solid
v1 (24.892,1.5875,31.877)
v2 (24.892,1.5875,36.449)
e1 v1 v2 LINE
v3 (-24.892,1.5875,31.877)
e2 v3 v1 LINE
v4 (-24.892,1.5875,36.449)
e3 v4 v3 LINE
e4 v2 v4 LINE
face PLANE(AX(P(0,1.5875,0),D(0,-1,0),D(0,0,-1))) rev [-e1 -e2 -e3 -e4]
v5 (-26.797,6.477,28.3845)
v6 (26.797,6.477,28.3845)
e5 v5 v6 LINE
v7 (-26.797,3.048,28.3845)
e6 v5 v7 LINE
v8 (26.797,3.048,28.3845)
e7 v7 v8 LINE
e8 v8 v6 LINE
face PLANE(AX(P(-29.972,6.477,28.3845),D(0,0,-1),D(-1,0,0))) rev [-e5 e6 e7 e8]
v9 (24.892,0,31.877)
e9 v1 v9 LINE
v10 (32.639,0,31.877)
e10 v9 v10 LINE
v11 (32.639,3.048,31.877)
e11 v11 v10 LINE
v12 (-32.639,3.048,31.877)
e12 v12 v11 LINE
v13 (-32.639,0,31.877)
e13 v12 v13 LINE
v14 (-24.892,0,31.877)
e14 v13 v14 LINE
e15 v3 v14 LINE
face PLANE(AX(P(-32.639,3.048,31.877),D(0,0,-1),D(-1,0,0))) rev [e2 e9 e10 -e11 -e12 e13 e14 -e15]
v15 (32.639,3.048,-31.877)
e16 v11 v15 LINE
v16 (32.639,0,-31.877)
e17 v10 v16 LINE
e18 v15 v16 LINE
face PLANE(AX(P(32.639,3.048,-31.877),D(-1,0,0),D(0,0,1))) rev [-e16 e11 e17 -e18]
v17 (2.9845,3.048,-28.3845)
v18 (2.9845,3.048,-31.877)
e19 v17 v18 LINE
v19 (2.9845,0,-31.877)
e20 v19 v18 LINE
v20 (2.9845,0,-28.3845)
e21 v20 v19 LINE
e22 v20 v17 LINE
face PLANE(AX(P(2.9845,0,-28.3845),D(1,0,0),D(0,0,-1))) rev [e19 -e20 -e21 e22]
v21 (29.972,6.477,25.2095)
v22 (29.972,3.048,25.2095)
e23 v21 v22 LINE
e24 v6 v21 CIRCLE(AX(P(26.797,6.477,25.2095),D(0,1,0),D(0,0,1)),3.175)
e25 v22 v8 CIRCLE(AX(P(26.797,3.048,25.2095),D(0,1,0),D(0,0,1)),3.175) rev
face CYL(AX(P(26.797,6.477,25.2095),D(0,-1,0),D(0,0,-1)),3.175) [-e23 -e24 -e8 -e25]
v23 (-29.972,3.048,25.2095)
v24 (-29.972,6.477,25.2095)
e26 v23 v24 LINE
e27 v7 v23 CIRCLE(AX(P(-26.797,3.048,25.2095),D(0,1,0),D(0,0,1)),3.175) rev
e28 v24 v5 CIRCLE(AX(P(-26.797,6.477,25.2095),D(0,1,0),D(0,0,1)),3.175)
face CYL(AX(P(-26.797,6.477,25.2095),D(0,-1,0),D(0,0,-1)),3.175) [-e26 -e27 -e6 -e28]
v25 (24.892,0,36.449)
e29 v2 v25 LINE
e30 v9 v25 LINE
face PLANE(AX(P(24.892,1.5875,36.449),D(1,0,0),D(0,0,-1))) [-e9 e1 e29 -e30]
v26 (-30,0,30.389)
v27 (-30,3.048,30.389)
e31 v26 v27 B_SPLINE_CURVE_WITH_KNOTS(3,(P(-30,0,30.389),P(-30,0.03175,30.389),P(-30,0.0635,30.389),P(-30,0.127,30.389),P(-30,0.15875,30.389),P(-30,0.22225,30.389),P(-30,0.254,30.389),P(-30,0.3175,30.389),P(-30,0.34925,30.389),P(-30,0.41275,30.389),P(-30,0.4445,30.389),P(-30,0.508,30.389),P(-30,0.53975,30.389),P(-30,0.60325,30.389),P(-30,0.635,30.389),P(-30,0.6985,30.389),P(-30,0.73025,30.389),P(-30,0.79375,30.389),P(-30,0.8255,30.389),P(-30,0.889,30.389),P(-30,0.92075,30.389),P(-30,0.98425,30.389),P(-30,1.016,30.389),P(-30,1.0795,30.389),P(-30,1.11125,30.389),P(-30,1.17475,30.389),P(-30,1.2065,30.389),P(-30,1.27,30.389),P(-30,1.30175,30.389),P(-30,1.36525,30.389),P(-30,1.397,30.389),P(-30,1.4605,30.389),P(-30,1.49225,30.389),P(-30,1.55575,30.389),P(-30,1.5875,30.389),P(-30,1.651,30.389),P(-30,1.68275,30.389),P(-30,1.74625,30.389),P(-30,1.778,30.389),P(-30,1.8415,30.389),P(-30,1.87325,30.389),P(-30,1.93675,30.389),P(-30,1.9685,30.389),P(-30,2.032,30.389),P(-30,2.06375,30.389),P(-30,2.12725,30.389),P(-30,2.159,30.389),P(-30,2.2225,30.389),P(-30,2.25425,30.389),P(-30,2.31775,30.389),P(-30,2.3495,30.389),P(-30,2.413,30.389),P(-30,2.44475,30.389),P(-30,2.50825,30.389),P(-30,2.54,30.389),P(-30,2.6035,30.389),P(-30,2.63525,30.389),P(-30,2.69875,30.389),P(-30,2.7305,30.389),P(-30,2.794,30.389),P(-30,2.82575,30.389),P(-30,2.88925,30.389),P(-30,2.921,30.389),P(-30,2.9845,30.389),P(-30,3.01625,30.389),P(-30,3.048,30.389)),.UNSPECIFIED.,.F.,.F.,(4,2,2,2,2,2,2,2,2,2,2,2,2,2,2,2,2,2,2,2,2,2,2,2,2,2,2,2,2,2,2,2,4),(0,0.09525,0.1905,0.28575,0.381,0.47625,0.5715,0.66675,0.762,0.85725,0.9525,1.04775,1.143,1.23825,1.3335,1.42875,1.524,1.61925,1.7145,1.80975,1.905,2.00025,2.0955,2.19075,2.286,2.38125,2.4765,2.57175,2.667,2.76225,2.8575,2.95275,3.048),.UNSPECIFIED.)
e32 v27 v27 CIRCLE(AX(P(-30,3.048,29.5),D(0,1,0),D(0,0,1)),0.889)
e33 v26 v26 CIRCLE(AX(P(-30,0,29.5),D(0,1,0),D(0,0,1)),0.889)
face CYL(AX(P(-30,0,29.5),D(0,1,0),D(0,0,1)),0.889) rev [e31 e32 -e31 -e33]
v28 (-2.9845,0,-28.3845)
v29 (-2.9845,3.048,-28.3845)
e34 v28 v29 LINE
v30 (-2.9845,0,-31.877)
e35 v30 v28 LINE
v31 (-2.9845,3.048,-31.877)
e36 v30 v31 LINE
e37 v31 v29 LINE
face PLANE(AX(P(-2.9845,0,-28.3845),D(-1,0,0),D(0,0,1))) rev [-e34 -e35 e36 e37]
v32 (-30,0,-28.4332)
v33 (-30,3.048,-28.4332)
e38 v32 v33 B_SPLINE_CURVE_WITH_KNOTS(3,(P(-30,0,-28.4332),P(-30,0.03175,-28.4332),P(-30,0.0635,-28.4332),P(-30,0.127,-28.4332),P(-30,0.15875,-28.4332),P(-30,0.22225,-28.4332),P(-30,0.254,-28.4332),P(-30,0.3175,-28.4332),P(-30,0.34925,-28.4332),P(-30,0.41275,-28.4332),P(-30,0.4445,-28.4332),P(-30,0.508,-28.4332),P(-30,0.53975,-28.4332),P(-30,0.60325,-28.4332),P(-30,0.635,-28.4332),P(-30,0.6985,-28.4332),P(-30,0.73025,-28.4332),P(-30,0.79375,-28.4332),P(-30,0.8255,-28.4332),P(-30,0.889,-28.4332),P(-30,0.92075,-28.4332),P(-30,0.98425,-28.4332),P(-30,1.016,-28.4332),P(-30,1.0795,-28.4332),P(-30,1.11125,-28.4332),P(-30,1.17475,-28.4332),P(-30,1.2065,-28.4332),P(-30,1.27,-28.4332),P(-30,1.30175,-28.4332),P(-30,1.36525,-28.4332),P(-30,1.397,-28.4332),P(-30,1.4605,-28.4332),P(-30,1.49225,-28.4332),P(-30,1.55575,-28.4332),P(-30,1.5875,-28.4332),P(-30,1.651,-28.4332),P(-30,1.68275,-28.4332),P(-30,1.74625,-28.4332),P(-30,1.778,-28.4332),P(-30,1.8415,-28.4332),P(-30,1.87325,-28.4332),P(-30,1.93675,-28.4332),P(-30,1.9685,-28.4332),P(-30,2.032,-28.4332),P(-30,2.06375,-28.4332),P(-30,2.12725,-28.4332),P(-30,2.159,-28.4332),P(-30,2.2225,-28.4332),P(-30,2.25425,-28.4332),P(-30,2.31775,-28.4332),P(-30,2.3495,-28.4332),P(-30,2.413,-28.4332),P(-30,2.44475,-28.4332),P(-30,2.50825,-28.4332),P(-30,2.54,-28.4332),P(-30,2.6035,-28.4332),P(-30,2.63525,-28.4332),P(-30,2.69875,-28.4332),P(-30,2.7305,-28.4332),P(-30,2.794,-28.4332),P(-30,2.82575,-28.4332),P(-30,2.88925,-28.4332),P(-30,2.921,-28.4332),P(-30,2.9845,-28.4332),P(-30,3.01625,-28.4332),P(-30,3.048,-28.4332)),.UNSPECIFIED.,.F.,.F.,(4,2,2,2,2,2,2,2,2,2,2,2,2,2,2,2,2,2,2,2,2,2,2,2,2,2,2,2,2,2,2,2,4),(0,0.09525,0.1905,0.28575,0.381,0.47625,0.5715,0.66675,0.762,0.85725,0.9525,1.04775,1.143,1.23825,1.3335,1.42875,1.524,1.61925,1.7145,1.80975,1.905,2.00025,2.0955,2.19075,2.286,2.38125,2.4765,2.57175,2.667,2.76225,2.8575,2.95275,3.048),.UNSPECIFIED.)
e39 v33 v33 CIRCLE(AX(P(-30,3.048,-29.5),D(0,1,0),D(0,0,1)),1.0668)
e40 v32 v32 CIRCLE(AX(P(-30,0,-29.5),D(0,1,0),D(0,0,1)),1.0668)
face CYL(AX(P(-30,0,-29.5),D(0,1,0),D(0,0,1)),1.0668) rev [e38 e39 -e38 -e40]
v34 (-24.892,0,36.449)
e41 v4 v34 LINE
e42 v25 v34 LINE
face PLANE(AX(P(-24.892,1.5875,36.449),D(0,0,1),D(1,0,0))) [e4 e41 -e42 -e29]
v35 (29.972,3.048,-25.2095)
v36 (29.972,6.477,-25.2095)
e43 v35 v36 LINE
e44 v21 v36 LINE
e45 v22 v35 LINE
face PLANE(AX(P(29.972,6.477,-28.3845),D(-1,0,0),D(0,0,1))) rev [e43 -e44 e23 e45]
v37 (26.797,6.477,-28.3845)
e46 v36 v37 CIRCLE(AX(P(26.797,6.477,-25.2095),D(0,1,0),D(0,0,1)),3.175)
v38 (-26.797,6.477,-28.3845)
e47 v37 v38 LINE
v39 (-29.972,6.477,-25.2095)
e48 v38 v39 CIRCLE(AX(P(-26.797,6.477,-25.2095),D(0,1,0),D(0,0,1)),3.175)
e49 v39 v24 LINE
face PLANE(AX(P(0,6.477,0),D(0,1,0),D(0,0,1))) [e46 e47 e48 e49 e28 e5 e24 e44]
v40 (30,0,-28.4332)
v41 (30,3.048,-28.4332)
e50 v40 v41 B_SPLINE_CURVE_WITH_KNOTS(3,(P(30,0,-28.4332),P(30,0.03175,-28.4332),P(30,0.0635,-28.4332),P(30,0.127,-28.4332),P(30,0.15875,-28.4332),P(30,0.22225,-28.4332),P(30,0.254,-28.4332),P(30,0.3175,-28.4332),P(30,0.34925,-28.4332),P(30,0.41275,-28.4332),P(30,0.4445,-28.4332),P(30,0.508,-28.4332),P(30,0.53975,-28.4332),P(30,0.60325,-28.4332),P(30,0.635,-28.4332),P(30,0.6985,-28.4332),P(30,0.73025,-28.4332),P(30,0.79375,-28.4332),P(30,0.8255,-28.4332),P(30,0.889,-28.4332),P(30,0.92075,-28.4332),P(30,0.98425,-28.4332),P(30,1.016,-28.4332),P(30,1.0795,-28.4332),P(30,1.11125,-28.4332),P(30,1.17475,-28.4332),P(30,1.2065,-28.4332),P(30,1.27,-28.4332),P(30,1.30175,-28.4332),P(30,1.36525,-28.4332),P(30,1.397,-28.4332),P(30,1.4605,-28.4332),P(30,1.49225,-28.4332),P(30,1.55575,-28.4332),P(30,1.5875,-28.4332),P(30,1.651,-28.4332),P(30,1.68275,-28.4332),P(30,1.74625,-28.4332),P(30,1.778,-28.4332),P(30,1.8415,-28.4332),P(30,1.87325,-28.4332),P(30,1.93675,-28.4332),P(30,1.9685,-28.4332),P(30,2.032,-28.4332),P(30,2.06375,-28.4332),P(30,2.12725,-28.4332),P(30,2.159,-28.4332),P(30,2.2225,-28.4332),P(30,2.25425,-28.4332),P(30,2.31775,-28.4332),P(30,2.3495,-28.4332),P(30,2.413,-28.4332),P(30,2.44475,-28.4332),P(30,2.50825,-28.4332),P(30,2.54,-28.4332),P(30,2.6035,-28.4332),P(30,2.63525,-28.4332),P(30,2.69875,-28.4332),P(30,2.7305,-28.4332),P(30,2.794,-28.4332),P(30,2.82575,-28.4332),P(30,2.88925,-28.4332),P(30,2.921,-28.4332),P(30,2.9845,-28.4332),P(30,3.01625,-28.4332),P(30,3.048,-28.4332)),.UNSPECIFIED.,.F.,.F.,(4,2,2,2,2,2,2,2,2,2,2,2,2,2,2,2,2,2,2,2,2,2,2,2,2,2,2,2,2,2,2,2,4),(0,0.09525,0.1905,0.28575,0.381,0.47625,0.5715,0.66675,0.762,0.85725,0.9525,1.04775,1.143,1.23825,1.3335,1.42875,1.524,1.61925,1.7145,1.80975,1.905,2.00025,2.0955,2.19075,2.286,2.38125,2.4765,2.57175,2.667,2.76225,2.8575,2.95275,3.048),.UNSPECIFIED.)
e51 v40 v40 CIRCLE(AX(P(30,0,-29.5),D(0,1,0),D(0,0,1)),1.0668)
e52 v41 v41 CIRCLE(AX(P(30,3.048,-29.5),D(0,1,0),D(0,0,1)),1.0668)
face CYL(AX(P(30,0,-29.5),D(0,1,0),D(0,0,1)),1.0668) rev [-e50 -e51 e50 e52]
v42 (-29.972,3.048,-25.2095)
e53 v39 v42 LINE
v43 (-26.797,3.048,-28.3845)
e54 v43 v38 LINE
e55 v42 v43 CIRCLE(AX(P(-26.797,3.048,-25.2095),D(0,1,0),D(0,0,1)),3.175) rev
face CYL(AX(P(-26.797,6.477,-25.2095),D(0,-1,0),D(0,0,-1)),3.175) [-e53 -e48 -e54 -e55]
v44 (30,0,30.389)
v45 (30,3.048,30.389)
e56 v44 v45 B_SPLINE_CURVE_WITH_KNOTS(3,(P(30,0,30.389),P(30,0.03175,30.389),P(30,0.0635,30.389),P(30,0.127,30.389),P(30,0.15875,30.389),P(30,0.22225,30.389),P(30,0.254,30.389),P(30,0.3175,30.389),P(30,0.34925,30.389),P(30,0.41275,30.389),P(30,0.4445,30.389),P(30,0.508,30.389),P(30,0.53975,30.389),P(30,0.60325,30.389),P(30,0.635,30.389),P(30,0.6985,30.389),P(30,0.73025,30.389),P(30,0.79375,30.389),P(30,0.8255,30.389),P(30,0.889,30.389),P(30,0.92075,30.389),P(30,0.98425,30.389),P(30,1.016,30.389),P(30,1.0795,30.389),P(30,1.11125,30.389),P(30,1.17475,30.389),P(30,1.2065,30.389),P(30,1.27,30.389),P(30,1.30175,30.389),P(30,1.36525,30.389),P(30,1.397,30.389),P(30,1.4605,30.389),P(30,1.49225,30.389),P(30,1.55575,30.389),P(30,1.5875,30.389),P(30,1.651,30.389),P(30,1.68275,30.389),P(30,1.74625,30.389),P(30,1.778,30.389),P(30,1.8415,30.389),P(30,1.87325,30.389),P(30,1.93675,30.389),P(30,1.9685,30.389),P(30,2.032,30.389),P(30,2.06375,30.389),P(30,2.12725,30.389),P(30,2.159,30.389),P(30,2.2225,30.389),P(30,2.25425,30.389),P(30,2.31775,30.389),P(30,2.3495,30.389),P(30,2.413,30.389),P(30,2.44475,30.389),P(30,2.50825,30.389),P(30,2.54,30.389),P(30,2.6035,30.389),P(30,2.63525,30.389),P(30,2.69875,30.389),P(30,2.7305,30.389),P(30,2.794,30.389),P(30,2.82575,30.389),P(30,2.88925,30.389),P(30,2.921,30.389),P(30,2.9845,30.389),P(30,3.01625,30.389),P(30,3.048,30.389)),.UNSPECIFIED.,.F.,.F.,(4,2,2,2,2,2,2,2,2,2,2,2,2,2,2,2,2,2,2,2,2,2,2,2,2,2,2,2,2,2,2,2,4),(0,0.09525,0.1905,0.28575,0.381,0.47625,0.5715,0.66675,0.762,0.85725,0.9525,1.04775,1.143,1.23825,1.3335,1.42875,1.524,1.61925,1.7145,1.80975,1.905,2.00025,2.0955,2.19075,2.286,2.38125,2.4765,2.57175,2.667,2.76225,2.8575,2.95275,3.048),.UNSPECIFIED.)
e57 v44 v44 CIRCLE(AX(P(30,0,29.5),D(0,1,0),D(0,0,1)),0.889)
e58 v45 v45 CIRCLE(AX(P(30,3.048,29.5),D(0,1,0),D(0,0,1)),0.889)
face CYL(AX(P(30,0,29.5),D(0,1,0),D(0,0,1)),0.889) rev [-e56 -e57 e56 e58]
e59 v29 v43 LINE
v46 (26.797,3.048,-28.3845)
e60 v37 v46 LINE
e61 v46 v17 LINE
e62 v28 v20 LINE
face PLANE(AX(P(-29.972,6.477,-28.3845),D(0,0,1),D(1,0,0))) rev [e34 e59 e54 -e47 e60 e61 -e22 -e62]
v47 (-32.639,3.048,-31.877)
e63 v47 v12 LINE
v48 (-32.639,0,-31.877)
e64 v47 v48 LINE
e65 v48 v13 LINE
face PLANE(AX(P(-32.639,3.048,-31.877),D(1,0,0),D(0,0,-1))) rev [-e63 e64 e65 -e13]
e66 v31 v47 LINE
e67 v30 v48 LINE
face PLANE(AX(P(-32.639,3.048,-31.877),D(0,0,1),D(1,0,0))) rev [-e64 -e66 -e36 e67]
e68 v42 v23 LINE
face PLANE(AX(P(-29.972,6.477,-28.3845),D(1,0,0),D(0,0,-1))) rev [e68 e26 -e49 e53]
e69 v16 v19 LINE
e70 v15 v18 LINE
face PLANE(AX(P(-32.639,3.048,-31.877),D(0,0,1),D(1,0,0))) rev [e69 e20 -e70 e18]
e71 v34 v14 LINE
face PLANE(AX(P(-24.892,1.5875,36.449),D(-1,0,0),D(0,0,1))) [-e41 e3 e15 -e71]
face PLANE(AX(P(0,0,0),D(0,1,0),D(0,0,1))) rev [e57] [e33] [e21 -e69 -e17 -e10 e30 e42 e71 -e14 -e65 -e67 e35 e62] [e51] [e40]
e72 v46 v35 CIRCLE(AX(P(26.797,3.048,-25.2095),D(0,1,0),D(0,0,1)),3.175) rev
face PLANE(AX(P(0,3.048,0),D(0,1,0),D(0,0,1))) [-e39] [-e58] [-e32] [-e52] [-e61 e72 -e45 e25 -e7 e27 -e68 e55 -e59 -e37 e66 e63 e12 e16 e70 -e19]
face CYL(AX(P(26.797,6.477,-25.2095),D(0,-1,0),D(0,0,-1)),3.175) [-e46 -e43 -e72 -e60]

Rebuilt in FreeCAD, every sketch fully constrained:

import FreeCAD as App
import Part
import Sketcher
from FreeCAD import Vector
Q = App.Units.Quantity


def edges_at(feature, points):
    """Names of the edges that pass closest to the given points."""
    edges = feature.Shape.Edges
    near = lambda p: min(range(len(edges)), key=lambda i: edges[i].distToShape(Part.Vertex(*p))[0])
    return sorted({f"Edge{near(p) + 1}" for p in points})


def add_polygon(sketch, points):
    """Adds a closed chain of lines whose ends are joined by coincident constraints."""
    first, n = sketch.GeometryCount, len(points)
    for a, b in zip(points, points[1:] + points[:1]):
        sketch.addGeometry(Part.LineSegment(App.Vector(*a, 0), App.Vector(*b, 0)), False)
    for i in range(n):
        sketch.addConstraint(Sketcher.Constraint("Coincident", first + i, 2, first + (i + 1) % n, 1))

doc = App.newDocument("Part")
body = doc.addObject("PartDesign::Body", "Body")

# Sketch on XZ plane
sketch1 = body.newObject("Sketcher::SketchObject", "Sketch")
sketch1.AttachmentSupport = (doc.getObject("XZ_Plane"), [""])
sketch1.MapMode = "FlatFace"
add_polygon(sketch1, [(-32.639, -31.877), (-32.639, 31.877), (32.639, 31.877), (32.639, -31.877)])  # lines 0-3
sketch1.addConstraint(Sketcher.Constraint("Vertical", 0))
sketch1.addConstraint(Sketcher.Constraint("Horizontal", 1))
sketch1.addConstraint(Sketcher.Constraint("Vertical", 2))
sketch1.addConstraint(Sketcher.Constraint("Horizontal", 3))
sketch1.addConstraint(Sketcher.Constraint("Symmetric", 0, 2, 2, 2, -1, 1))
sketch1.addConstraint(Sketcher.Constraint("DistanceX", 1, 1, 1, 2, Q("2.57 in")))
sketch1.addConstraint(Sketcher.Constraint("DistanceY", 0, 1, 0, 2, Q("2.51 in")))
pad1 = body.newObject("PartDesign::Pad", "Pad")
pad1.Profile = sketch1
pad1.Length = Q("0.12 in")
pad1.Reversed = True

# Sketch on XZ plane
sketch2 = body.newObject("Sketcher::SketchObject", "Sketch001")
sketch2.AttachmentSupport = (doc.getObject("XZ_Plane"), [""])
sketch2.MapMode = "FlatFace"
sketch2.AttachmentOffset = App.Placement(Vector(0, 0, -0.12 * 25.4), App.Rotation())
add_polygon(sketch2, [(-29.972, -28.3845), (-29.972, 28.3845), (29.972, 28.3845), (29.972, -28.3845)])  # lines 0-3
sketch2.addConstraint(Sketcher.Constraint("Vertical", 0))
sketch2.addConstraint(Sketcher.Constraint("Horizontal", 1))
sketch2.addConstraint(Sketcher.Constraint("Vertical", 2))
sketch2.addConstraint(Sketcher.Constraint("Horizontal", 3))
sketch2.addConstraint(Sketcher.Constraint("Symmetric", 0, 2, 2, 2, -1, 1))
sketch2.addConstraint(Sketcher.Constraint("DistanceX", 1, 1, 1, 2, Q("2.36 in")))
sketch2.addConstraint(Sketcher.Constraint("DistanceY", 0, 1, 0, 2, Q("2.235 in")))
pad2 = body.newObject("PartDesign::Pad", "Pad001")
pad2.Profile = sketch2
pad2.Length = Q("0.135 in")
pad2.Reversed = True

# Sketch on XZ plane
sketch3 = body.newObject("Sketcher::SketchObject", "Sketch002")
sketch3.AttachmentSupport = (doc.getObject("XZ_Plane"), [""])
sketch3.MapMode = "FlatFace"
sketch3.AttachmentOffset = App.Placement(Vector(0, 0, -0.12 * 25.4), App.Rotation())
sketch3.addGeometry(Part.Circle(Vector(-30, -29.5, 0), Vector(0, 0, 1), 1.0668), False)
sketch3.addGeometry(Part.Circle(Vector(30, -29.5, 0), Vector(0, 0, 1), 1.0668), False)
sketch3.addGeometry(Part.Circle(Vector(30, 29.5, 0), Vector(0, 0, 1), 0.889), False)
sketch3.addGeometry(Part.Circle(Vector(-30, 29.5, 0), Vector(0, 0, 1), 0.889), False)
sketch3.addConstraint(Sketcher.Constraint("Equal", 0, 1))
sketch3.addConstraint(Sketcher.Constraint("Equal", 2, 3))
sketch3.addConstraint(Sketcher.Constraint("Symmetric", 0, 3, 2, 3, -1, 1))
sketch3.addConstraint(Sketcher.Constraint("Symmetric", 1, 3, 3, 3, -1, 1))
sketch3.addConstraint(Sketcher.Constraint("Symmetric", 0, 3, 1, 3, -2))
sketch3.addConstraint(Sketcher.Constraint("Diameter", 2, Q("0.07 in")))
sketch3.addConstraint(Sketcher.Constraint("Diameter", 0, Q("0.084 in")))
sketch3.addConstraint(Sketcher.Constraint("DistanceX", 0, 3, -1, 1, Q("30 mm")))
sketch3.addConstraint(Sketcher.Constraint("DistanceY", 0, 3, -1, 1, Q("29.5 mm")))
pocket1 = body.newObject("PartDesign::Pocket", "Pocket")
pocket1.Profile = sketch3
pocket1.Type = "ThroughAll"
pocket1.Reversed = True
doc.recompute()

fillet = body.newObject("PartDesign::Fillet", "Fillet")
fillet.Base = (pocket1, edges_at(pocket1, [
    (29.972, 4.763, 28.384),
    (29.972, 4.763, -28.384),
    (-29.972, 4.763, -28.384),
    (-29.972, 4.763, 28.384),
]))
fillet.Radius = Q("0.125 in")

# Sketch on XZ plane
sketch4 = body.newObject("Sketcher::SketchObject", "Sketch003")
sketch4.AttachmentSupport = (doc.getObject("XZ_Plane"), [""])
sketch4.MapMode = "FlatFace"
sketch4.AttachmentOffset = App.Placement(Vector(0, 0, -0.12 * 25.4), App.Rotation())
add_polygon(sketch4, [(-2.9845, -31.877), (-2.9845, -28.3845), (2.9845, -28.3845), (2.9845, -31.877)])  # lines 0-3
sketch4.addConstraint(Sketcher.Constraint("Vertical", 0))
sketch4.addConstraint(Sketcher.Constraint("Horizontal", 1))
sketch4.addConstraint(Sketcher.Constraint("Vertical", 2))
sketch4.addConstraint(Sketcher.Constraint("Horizontal", 3))
sketch4.addConstraint(Sketcher.Constraint("DistanceX", 1, 1, 1, 2, Q("0.235 in")))
sketch4.addConstraint(Sketcher.Constraint("DistanceY", 0, 1, 0, 2, Q("0.1375 in")))
sketch4.addConstraint(Sketcher.Constraint("DistanceY", 2, 2, -1, 1, Q("1.255 in")))
sketch4.addConstraint(Sketcher.Constraint("DistanceX", 0, 2, -1, 1, Q("0.1175 in")))
pocket2 = body.newObject("PartDesign::Pocket", "Pocket001")
pocket2.Profile = sketch4
pocket2.Type = "ThroughAll"
pocket2.Reversed = True

# Sketch on XZ plane
sketch5 = body.newObject("Sketcher::SketchObject", "Sketch004")
sketch5.AttachmentSupport = (doc.getObject("XZ_Plane"), [""])
sketch5.MapMode = "FlatFace"
add_polygon(sketch5, [(-24.892, 36.449), (-24.892, 31.877), (24.892, 31.877), (24.892, 36.449)])  # lines 0-3
sketch5.addConstraint(Sketcher.Constraint("Vertical", 0))
sketch5.addConstraint(Sketcher.Constraint("Horizontal", 1))
sketch5.addConstraint(Sketcher.Constraint("Vertical", 2))
sketch5.addConstraint(Sketcher.Constraint("Horizontal", 3))
sketch5.addConstraint(Sketcher.Constraint("DistanceX", 1, 1, 1, 2, Q("1.96 in")))
sketch5.addConstraint(Sketcher.Constraint("DistanceY", 0, 2, 0, 1, Q("0.18 in")))
sketch5.addConstraint(Sketcher.Constraint("DistanceX", 0, 2, -1, 1, Q("0.98 in")))
sketch5.addConstraint(Sketcher.Constraint("DistanceY", -1, 1, 0, 2, Q("1.255 in")))
pad3 = body.newObject("PartDesign::Pad", "Pad002")
pad3.Profile = sketch5
pad3.Length = Q("0.0625 in")
pad3.Reversed = True

doc.recompute()
